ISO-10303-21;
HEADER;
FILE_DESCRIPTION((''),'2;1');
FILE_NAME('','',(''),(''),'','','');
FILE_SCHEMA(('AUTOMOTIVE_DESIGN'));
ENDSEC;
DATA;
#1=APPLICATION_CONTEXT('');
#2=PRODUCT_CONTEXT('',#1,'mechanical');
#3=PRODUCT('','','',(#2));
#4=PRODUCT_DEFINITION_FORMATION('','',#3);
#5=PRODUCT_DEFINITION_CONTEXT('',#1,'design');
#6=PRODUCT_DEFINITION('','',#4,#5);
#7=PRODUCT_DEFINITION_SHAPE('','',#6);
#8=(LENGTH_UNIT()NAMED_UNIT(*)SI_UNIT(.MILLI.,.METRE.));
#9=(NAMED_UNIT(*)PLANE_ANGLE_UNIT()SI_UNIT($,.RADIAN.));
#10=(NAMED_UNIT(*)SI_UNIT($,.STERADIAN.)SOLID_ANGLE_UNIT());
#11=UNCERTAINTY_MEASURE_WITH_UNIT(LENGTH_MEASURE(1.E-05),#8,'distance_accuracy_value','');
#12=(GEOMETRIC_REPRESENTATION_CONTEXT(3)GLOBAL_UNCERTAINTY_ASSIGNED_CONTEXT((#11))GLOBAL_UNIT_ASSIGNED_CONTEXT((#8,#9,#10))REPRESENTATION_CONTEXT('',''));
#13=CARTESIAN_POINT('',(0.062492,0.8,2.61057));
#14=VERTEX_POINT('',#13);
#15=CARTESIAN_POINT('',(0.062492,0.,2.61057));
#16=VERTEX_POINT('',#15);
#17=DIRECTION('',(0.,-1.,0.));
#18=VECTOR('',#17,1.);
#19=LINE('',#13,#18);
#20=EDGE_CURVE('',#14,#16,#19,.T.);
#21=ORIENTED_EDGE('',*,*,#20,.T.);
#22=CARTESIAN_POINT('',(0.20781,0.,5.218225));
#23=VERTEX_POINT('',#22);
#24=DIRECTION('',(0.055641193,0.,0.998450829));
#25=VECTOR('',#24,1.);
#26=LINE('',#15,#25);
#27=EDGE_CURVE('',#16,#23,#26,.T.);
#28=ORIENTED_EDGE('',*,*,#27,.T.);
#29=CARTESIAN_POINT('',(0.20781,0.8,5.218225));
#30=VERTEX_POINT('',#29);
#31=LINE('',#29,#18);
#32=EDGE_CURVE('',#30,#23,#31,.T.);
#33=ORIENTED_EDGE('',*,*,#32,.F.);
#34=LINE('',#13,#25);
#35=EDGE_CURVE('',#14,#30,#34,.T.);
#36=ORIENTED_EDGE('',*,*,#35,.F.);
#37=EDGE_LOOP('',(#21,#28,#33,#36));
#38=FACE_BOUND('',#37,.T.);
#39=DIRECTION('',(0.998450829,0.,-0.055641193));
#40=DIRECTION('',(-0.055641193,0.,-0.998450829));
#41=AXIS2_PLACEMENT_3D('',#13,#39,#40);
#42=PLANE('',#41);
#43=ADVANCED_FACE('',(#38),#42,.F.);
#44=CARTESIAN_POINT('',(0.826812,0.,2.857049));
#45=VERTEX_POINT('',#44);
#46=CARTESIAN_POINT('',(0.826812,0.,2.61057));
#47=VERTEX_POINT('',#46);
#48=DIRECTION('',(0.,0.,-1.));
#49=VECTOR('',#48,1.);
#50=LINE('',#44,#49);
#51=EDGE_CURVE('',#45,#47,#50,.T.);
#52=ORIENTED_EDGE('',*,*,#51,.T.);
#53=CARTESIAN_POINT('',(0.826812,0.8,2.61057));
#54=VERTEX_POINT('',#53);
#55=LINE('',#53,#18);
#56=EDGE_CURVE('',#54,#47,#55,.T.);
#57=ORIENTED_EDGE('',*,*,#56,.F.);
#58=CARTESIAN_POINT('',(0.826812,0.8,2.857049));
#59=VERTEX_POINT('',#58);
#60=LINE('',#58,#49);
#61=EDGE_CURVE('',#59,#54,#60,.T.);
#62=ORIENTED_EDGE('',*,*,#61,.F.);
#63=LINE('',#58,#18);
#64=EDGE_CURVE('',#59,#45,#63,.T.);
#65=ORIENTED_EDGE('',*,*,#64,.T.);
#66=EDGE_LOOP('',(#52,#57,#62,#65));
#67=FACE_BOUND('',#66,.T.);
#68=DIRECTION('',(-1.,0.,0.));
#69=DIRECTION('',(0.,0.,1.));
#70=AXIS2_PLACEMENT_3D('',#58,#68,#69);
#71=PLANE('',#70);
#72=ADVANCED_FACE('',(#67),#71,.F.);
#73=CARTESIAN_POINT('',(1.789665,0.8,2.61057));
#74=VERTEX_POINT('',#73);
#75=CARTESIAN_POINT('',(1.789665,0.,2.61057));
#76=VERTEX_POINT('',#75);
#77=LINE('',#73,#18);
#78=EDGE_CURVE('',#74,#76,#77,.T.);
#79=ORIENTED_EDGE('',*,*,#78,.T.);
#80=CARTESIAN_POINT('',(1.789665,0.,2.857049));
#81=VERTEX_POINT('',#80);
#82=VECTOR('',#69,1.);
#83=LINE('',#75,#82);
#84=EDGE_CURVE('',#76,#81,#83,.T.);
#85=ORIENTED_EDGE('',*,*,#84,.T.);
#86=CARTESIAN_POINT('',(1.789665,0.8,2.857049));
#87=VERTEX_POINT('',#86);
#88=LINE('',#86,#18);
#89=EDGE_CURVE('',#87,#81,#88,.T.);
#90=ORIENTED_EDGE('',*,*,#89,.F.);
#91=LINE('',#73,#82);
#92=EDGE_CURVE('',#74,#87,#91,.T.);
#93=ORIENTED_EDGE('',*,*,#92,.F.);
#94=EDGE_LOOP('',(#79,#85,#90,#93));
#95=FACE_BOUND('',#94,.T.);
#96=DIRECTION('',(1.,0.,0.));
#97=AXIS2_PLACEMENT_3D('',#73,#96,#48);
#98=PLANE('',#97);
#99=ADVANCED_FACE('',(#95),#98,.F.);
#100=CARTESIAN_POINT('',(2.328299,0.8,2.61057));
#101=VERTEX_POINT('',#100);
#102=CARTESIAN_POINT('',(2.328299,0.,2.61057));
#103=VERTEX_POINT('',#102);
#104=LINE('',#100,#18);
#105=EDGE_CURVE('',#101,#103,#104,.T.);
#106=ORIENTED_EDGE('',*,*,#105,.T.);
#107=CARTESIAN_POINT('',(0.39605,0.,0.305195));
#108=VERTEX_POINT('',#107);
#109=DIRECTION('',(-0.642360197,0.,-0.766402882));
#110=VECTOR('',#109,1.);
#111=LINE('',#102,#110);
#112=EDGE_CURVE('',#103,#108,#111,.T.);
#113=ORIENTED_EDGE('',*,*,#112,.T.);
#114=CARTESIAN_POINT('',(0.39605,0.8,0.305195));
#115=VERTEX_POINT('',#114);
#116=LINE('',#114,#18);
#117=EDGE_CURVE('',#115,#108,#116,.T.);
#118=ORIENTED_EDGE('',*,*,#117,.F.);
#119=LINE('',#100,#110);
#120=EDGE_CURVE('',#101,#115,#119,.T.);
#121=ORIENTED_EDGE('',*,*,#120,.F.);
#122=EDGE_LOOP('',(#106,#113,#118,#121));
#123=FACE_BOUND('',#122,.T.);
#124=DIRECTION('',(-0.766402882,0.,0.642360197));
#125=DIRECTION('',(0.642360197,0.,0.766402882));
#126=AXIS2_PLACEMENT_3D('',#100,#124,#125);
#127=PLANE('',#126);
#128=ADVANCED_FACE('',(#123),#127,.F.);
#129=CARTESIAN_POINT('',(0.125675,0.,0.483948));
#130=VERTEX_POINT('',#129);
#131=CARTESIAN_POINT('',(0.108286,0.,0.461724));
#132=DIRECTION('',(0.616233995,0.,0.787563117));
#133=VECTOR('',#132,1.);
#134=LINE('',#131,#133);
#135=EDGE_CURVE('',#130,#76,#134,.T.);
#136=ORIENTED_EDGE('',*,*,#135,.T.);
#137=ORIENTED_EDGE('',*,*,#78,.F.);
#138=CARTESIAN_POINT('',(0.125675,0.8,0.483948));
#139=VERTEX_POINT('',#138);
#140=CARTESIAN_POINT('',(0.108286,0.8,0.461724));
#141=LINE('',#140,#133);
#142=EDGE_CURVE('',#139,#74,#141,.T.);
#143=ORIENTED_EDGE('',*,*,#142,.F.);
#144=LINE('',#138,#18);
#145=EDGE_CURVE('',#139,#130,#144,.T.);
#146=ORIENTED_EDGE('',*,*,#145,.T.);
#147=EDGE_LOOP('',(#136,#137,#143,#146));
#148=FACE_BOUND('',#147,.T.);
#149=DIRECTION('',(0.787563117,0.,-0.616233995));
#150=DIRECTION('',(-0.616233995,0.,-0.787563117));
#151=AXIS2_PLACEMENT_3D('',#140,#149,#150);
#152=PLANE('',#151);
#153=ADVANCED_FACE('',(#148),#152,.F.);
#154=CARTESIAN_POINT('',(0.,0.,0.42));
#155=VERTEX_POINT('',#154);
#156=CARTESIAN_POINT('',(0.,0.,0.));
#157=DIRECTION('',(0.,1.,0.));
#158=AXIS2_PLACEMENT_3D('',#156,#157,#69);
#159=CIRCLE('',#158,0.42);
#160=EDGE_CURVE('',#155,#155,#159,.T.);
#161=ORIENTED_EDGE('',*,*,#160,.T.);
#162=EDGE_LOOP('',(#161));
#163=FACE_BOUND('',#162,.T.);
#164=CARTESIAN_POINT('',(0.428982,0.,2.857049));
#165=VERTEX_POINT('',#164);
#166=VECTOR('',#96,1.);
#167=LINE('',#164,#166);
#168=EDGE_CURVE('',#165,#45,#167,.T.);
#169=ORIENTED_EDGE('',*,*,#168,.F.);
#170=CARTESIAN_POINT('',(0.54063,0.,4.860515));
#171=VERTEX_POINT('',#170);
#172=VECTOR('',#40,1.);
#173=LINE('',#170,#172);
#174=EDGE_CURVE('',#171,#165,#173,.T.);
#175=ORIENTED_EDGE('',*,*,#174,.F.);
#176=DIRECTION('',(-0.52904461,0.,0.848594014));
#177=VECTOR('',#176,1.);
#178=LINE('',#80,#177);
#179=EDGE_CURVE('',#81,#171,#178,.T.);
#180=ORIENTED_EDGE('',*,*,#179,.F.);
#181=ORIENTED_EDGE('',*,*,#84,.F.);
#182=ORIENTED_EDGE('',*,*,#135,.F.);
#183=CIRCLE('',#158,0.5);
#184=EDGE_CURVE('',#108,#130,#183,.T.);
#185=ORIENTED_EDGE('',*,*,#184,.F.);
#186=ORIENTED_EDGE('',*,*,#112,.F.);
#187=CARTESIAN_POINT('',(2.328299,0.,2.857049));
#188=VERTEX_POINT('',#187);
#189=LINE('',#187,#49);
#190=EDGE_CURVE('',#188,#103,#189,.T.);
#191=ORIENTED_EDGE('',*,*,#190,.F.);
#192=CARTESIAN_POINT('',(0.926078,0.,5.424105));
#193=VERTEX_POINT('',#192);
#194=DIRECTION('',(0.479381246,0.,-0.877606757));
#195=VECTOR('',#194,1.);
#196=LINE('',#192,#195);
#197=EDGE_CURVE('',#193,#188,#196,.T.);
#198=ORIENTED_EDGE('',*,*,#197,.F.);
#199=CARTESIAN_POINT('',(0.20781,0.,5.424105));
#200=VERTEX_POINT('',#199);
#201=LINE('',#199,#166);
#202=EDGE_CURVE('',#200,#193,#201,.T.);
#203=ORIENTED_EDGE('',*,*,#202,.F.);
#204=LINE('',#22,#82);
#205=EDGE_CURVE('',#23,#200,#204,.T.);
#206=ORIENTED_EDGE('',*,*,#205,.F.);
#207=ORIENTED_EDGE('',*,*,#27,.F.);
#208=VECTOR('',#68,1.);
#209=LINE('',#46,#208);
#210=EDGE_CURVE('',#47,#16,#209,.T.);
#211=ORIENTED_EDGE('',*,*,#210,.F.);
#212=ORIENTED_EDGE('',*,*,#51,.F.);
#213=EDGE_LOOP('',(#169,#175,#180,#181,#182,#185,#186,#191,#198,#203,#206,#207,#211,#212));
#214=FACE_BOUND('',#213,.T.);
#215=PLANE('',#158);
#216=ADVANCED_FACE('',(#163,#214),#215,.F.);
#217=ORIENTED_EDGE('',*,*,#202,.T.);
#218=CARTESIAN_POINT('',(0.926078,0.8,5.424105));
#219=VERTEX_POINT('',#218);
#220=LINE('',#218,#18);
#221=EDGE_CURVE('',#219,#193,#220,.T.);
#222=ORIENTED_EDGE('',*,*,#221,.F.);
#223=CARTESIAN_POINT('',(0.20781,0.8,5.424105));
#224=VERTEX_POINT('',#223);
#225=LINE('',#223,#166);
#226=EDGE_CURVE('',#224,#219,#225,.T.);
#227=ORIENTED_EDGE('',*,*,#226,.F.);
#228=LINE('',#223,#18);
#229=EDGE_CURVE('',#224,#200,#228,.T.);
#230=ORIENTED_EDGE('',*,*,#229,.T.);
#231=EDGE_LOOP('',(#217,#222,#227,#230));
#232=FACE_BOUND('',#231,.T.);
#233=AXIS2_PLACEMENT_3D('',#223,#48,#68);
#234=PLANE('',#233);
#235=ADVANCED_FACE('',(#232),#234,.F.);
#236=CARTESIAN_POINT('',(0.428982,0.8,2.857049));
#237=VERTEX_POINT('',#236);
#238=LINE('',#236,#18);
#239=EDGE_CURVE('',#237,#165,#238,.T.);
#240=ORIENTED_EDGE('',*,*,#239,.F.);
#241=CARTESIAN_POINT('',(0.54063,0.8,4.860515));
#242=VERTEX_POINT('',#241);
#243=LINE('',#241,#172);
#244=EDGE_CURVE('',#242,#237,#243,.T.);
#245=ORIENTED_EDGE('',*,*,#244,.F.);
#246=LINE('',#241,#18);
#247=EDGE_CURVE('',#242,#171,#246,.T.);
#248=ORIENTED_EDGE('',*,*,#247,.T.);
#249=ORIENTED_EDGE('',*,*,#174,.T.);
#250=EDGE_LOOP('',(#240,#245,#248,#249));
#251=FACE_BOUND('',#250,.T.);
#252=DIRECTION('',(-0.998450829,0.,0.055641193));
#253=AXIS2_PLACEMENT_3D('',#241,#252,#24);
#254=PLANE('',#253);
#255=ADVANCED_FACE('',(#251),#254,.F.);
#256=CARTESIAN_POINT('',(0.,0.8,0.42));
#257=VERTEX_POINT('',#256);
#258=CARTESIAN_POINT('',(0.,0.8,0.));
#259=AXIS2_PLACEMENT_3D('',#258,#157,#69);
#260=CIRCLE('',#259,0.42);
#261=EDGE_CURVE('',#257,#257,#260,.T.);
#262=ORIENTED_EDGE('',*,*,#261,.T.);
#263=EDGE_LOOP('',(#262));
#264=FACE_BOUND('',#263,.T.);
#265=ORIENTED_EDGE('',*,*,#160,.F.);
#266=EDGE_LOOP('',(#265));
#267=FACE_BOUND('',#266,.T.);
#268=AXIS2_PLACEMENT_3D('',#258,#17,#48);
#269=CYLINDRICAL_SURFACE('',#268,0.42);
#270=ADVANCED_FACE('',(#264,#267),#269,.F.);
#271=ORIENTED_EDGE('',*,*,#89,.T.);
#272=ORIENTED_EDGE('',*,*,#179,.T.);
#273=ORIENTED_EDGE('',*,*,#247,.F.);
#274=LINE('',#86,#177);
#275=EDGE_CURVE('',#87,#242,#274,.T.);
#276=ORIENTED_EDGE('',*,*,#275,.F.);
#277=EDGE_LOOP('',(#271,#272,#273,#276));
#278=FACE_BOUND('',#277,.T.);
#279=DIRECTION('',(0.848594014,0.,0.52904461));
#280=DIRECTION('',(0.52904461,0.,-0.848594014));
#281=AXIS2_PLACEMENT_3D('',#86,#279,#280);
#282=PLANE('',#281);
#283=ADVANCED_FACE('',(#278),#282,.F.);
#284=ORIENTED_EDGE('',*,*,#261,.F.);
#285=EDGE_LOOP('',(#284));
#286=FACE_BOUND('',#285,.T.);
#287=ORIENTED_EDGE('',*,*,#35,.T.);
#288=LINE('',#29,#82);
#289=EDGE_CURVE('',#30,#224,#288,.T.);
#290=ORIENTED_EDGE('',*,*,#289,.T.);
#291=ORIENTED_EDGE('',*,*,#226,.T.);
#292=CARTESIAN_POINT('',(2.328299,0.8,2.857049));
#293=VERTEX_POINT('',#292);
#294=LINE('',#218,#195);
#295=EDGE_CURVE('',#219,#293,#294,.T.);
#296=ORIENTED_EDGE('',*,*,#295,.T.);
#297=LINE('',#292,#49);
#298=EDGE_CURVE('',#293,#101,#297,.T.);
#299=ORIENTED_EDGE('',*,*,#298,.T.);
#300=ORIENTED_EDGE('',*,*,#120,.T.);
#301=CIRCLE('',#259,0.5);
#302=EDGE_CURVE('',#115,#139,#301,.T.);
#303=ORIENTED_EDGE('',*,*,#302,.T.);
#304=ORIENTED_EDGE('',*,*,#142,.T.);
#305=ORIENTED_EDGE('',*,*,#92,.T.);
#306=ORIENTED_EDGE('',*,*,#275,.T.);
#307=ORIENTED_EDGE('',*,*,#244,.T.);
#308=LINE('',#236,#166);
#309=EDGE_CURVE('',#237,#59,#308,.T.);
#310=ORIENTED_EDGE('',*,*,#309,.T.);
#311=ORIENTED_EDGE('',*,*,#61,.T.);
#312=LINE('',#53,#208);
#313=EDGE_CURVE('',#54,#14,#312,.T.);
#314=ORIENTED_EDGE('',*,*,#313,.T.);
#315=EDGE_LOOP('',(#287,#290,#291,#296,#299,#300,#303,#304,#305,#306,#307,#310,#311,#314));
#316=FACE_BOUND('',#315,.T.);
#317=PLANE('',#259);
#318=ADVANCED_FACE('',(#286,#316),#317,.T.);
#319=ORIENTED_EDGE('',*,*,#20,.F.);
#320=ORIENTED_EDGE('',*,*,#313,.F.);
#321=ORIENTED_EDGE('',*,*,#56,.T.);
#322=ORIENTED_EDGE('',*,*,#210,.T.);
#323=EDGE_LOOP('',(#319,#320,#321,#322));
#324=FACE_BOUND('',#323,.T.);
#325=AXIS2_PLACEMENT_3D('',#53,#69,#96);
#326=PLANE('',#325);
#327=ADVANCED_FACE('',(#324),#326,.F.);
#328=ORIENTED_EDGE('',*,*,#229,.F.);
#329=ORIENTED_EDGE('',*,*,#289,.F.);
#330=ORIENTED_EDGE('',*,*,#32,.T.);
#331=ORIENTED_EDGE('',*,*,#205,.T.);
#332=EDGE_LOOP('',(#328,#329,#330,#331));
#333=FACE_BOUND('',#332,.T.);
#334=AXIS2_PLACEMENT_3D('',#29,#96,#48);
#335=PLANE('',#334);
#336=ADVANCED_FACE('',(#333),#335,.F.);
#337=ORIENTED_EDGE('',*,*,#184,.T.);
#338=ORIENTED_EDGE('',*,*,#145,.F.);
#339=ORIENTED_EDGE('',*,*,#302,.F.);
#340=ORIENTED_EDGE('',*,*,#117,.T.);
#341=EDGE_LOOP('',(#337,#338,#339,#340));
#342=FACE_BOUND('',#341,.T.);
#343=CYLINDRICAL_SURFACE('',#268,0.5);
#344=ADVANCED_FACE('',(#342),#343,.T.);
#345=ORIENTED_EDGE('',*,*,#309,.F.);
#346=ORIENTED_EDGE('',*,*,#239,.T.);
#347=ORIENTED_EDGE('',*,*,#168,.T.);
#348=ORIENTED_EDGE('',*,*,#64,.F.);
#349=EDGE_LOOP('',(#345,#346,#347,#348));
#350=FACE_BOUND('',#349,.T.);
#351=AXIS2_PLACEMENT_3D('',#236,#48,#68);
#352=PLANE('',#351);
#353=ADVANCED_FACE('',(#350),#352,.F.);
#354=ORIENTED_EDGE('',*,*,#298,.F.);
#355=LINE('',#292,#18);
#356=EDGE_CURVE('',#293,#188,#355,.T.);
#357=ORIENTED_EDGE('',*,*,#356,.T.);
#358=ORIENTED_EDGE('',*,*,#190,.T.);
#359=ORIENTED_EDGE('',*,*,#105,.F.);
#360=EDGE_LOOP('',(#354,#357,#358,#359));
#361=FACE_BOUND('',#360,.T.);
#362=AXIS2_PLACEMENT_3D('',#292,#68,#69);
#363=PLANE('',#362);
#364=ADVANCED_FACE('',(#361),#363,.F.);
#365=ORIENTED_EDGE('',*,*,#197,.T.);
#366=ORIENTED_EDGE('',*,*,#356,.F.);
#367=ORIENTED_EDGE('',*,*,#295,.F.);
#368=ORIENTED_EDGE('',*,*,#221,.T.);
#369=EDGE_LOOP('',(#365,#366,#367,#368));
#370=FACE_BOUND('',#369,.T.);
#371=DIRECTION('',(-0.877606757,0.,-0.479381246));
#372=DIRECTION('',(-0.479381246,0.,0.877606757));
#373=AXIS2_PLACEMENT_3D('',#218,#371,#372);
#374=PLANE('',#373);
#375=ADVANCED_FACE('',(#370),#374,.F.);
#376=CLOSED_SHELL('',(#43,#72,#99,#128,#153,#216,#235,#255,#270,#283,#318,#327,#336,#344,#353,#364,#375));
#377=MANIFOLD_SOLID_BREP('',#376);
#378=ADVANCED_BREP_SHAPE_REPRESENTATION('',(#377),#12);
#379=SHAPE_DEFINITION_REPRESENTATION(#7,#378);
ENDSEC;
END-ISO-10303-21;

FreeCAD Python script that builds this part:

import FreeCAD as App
import Part
import Sketcher


def add_polygon(sketch, points):
    """Adds a closed chain of lines whose ends are joined by coincident constraints."""
    first, n = sketch.GeometryCount, len(points)
    for a, b in zip(points, points[1:] + points[:1]):
        sketch.addGeometry(Part.LineSegment(App.Vector(*a, 0), App.Vector(*b, 0)), False)
    for i in range(n):
        sketch.addConstraint(Sketcher.Constraint("Coincident", first + i, 2, first + (i + 1) % n, 1))

doc = App.newDocument("Part")
params = doc.addObject("Spreadsheet::Sheet", "Params")
for row, (alias, value) in enumerate([
    ("sketch1_diameter", "1 mm"),
    ("sketch1_diameter2", "0.84 mm"),
    ("pad1_length", "0.8 mm"),
    ("pad2_length", "0.8 mm"),
], start=1):
    params.set(f"A{row}", alias)
    params.set(f"B{row}", "=" + value)
    params.setAlias(f"B{row}", alias)

body = doc.addObject("PartDesign::Body", "Body")

# Sketch on XZ plane
sketch1 = body.newObject("Sketcher::SketchObject", "Sketch")
sketch1.AttachmentSupport = (doc.getObject("XZ_Plane"), [""])
sketch1.MapMode = "FlatFace"
sketch1.addGeometry(Part.Circle(App.Vector(0, 0, 0), App.Vector(0, 0, 1), 0.5), False)
sketch1.addGeometry(Part.Circle(App.Vector(0, 0, 0), App.Vector(0, 0, 1), 0.42), False)
sketch1.addConstraint(Sketcher.Constraint("Coincident", 0, 3, -1, 1))
sketch1.addConstraint(Sketcher.Constraint("Coincident", 1, 3, -1, 1))
sketch1.addConstraint(Sketcher.Constraint("Diameter", 0, 1.0))
sketch1.addConstraint(Sketcher.Constraint("Diameter", 1, 0.84))
sketch1.setExpression("Constraints[2]", "Params.sketch1_diameter")
sketch1.setExpression("Constraints[3]", "Params.sketch1_diameter2")
pad1 = body.newObject("PartDesign::Pad", "Pad")
pad1.Profile = sketch1
pad1.setExpression("Length", "Params.pad1_length")
pad1.Reversed = True

# Sketch on XZ plane
sketch2 = body.newObject("Sketcher::SketchObject", "Sketch001")
sketch2.AttachmentSupport = (doc.getObject("XZ_Plane"), [""])
sketch2.MapMode = "FlatFace"
add_polygon(sketch2, [(0.11, 0.46), (1.79, 2.61), (1.79, 2.86), (0.54, 4.86), (0.43, 2.86), (0.83, 2.86), (0.83, 2.61), (0.06, 2.61), (0.21, 5.22), (0.21, 5.42), (0.93, 5.42), (2.33, 2.86), (2.33, 2.61), (0.4, 0.31)])  # lines 0-13
sketch2.addConstraint(Sketcher.Constraint("Vertical", 1))
sketch2.addConstraint(Sketcher.Constraint("Horizontal", 4))
sketch2.addConstraint(Sketcher.Constraint("Vertical", 5))
sketch2.addConstraint(Sketcher.Constraint("Horizontal", 6))
sketch2.addConstraint(Sketcher.Constraint("Vertical", 8))
sketch2.addConstraint(Sketcher.Constraint("Horizontal", 9))
sketch2.addConstraint(Sketcher.Constraint("Vertical", 11))
sketch2.addConstraint(Sketcher.Constraint("Parallel", 3, 7))
sketch2.addConstraint(Sketcher.Constraint("Horizontal", 1, 2, 3, 2))
sketch2.addConstraint(Sketcher.Constraint("Horizontal", 0, 2, 5, 2))
sketch2.addConstraint(Sketcher.Constraint("Horizontal", 4, 2, 10, 2))
sketch2.addConstraint(Sketcher.Constraint("Horizontal", 6, 2, 11, 2))
sketch2.addConstraint(Sketcher.Constraint("DistanceX", 7, 2, 4, 2, 0.619002))
sketch2.addConstraint(Sketcher.Constraint("Distance", 7, 2.611702))
sketch2.addConstraint(Sketcher.Constraint("DistanceX", 4, 1, 4, 2, 0.39783))
sketch2.addConstraint(Sketcher.Constraint("DistanceX", 6, 2, 6, 1, 0.76432))
sketch2.addConstraint(Sketcher.Constraint("DistanceX", 9, 1, 9, 2, 0.718268))
sketch2.addConstraint(Sketcher.Constraint("DistanceY", 1, 1, 1, 2, 0.24648))
sketch2.addConstraint(Sketcher.Constraint("DistanceY", 8, 1, 8, 2, 0.205879))
sketch2.addConstraint(Sketcher.Constraint("DistanceX", -1, 1, 10, 2, 2.328299))
sketch2.addConstraint(Sketcher.Constraint("Distance", 13, 0.327581))
sketch2.addConstraint(Sketcher.Constraint("DistanceY", -1, 1, 0, 2, 2.61057))
sketch2.addConstraint(Sketcher.Constraint("DistanceX", -1, 1, 2, 2, 0.54063))
sketch2.addConstraint(Sketcher.Constraint("DistanceX", -1, 1, 4, 2, 0.826812))
sketch2.addConstraint(Sketcher.Constraint("DistanceX", -1, 1, 12, 2, 0.39605))
sketch2.addConstraint(Sketcher.Constraint("DistanceY", 12, 2, 13, 2, 0.156529))
sketch2.addConstraint(Sketcher.Constraint("Distance", 0, 2.728474))
sketch2.addConstraint(Sketcher.Constraint("Distance", 2, 2.360924))
pad2 = body.newObject("PartDesign::Pad", "Pad001")
pad2.Profile = sketch2
pad2.setExpression("Length", "Params.pad2_length")
pad2.Reversed = True

doc.recompute()
